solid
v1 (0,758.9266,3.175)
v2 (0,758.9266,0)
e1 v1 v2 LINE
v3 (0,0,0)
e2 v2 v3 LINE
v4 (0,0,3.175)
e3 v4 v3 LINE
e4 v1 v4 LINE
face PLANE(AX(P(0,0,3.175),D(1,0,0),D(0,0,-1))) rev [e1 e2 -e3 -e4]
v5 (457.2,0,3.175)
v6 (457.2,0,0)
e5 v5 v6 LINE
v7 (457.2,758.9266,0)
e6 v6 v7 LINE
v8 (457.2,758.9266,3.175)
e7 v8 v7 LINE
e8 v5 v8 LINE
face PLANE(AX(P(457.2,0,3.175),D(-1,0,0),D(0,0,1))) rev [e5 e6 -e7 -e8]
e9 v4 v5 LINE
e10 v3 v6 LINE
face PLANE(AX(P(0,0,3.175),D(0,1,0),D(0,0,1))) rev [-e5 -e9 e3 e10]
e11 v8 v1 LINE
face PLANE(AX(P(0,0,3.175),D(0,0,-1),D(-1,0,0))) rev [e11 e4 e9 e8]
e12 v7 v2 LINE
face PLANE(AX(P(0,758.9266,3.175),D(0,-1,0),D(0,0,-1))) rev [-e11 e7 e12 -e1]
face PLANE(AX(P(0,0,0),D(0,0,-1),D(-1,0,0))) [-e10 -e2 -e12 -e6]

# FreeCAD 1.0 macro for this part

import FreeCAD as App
import Part
import Sketcher
from FreeCAD import Vector
Q = App.Units.Quantity


def add_polygon(sketch, points):
    """Adds a closed chain of lines whose ends are joined by coincident constraints."""
    first, n = sketch.GeometryCount, len(points)
    for a, b in zip(points, points[1:] + points[:1]):
        sketch.addGeometry(Part.LineSegment(App.Vector(*a, 0), App.Vector(*b, 0)), False)
    for i in range(n):
        sketch.addConstraint(Sketcher.Constraint("Coincident", first + i, 2, first + (i + 1) % n, 1))

doc = App.newDocument("Part")
body = doc.addObject("PartDesign::Body", "Body")

# Sketch on XY plane
sketch1 = doc.addObject("Sketcher::SketchObject", "Sketch")
body.addObject(sketch1)
sketch1.AttachmentSupport = (doc.XY_Plane, [""])
sketch1.MapMode = "FlatFace"
add_polygon(sketch1, [(0, 759), (0, 0), (457, 0), (457, 759)])  # lines 0-3
sketch1.addConstraint([
    Sketcher.Constraint("Vertical", 0),
    Sketcher.Constraint("Horizontal", 1),
    Sketcher.Constraint("Vertical", 2),
    Sketcher.Constraint("Horizontal", 3),
    Sketcher.Constraint("Coincident", 0, 2, -1, 1),
    Sketcher.Constraint("DistanceX", 1, 1, 1, 2, Q("18 in")),
    Sketcher.Constraint("DistanceY", 0, 2, 0, 1, Q("29.879 in")),
])
pad1 = doc.addObject("PartDesign::Pad", "Pad")
body.addObject(pad1)
pad1.Profile = sketch1
pad1.Length = Q("0.125 in")

doc.recompute()
